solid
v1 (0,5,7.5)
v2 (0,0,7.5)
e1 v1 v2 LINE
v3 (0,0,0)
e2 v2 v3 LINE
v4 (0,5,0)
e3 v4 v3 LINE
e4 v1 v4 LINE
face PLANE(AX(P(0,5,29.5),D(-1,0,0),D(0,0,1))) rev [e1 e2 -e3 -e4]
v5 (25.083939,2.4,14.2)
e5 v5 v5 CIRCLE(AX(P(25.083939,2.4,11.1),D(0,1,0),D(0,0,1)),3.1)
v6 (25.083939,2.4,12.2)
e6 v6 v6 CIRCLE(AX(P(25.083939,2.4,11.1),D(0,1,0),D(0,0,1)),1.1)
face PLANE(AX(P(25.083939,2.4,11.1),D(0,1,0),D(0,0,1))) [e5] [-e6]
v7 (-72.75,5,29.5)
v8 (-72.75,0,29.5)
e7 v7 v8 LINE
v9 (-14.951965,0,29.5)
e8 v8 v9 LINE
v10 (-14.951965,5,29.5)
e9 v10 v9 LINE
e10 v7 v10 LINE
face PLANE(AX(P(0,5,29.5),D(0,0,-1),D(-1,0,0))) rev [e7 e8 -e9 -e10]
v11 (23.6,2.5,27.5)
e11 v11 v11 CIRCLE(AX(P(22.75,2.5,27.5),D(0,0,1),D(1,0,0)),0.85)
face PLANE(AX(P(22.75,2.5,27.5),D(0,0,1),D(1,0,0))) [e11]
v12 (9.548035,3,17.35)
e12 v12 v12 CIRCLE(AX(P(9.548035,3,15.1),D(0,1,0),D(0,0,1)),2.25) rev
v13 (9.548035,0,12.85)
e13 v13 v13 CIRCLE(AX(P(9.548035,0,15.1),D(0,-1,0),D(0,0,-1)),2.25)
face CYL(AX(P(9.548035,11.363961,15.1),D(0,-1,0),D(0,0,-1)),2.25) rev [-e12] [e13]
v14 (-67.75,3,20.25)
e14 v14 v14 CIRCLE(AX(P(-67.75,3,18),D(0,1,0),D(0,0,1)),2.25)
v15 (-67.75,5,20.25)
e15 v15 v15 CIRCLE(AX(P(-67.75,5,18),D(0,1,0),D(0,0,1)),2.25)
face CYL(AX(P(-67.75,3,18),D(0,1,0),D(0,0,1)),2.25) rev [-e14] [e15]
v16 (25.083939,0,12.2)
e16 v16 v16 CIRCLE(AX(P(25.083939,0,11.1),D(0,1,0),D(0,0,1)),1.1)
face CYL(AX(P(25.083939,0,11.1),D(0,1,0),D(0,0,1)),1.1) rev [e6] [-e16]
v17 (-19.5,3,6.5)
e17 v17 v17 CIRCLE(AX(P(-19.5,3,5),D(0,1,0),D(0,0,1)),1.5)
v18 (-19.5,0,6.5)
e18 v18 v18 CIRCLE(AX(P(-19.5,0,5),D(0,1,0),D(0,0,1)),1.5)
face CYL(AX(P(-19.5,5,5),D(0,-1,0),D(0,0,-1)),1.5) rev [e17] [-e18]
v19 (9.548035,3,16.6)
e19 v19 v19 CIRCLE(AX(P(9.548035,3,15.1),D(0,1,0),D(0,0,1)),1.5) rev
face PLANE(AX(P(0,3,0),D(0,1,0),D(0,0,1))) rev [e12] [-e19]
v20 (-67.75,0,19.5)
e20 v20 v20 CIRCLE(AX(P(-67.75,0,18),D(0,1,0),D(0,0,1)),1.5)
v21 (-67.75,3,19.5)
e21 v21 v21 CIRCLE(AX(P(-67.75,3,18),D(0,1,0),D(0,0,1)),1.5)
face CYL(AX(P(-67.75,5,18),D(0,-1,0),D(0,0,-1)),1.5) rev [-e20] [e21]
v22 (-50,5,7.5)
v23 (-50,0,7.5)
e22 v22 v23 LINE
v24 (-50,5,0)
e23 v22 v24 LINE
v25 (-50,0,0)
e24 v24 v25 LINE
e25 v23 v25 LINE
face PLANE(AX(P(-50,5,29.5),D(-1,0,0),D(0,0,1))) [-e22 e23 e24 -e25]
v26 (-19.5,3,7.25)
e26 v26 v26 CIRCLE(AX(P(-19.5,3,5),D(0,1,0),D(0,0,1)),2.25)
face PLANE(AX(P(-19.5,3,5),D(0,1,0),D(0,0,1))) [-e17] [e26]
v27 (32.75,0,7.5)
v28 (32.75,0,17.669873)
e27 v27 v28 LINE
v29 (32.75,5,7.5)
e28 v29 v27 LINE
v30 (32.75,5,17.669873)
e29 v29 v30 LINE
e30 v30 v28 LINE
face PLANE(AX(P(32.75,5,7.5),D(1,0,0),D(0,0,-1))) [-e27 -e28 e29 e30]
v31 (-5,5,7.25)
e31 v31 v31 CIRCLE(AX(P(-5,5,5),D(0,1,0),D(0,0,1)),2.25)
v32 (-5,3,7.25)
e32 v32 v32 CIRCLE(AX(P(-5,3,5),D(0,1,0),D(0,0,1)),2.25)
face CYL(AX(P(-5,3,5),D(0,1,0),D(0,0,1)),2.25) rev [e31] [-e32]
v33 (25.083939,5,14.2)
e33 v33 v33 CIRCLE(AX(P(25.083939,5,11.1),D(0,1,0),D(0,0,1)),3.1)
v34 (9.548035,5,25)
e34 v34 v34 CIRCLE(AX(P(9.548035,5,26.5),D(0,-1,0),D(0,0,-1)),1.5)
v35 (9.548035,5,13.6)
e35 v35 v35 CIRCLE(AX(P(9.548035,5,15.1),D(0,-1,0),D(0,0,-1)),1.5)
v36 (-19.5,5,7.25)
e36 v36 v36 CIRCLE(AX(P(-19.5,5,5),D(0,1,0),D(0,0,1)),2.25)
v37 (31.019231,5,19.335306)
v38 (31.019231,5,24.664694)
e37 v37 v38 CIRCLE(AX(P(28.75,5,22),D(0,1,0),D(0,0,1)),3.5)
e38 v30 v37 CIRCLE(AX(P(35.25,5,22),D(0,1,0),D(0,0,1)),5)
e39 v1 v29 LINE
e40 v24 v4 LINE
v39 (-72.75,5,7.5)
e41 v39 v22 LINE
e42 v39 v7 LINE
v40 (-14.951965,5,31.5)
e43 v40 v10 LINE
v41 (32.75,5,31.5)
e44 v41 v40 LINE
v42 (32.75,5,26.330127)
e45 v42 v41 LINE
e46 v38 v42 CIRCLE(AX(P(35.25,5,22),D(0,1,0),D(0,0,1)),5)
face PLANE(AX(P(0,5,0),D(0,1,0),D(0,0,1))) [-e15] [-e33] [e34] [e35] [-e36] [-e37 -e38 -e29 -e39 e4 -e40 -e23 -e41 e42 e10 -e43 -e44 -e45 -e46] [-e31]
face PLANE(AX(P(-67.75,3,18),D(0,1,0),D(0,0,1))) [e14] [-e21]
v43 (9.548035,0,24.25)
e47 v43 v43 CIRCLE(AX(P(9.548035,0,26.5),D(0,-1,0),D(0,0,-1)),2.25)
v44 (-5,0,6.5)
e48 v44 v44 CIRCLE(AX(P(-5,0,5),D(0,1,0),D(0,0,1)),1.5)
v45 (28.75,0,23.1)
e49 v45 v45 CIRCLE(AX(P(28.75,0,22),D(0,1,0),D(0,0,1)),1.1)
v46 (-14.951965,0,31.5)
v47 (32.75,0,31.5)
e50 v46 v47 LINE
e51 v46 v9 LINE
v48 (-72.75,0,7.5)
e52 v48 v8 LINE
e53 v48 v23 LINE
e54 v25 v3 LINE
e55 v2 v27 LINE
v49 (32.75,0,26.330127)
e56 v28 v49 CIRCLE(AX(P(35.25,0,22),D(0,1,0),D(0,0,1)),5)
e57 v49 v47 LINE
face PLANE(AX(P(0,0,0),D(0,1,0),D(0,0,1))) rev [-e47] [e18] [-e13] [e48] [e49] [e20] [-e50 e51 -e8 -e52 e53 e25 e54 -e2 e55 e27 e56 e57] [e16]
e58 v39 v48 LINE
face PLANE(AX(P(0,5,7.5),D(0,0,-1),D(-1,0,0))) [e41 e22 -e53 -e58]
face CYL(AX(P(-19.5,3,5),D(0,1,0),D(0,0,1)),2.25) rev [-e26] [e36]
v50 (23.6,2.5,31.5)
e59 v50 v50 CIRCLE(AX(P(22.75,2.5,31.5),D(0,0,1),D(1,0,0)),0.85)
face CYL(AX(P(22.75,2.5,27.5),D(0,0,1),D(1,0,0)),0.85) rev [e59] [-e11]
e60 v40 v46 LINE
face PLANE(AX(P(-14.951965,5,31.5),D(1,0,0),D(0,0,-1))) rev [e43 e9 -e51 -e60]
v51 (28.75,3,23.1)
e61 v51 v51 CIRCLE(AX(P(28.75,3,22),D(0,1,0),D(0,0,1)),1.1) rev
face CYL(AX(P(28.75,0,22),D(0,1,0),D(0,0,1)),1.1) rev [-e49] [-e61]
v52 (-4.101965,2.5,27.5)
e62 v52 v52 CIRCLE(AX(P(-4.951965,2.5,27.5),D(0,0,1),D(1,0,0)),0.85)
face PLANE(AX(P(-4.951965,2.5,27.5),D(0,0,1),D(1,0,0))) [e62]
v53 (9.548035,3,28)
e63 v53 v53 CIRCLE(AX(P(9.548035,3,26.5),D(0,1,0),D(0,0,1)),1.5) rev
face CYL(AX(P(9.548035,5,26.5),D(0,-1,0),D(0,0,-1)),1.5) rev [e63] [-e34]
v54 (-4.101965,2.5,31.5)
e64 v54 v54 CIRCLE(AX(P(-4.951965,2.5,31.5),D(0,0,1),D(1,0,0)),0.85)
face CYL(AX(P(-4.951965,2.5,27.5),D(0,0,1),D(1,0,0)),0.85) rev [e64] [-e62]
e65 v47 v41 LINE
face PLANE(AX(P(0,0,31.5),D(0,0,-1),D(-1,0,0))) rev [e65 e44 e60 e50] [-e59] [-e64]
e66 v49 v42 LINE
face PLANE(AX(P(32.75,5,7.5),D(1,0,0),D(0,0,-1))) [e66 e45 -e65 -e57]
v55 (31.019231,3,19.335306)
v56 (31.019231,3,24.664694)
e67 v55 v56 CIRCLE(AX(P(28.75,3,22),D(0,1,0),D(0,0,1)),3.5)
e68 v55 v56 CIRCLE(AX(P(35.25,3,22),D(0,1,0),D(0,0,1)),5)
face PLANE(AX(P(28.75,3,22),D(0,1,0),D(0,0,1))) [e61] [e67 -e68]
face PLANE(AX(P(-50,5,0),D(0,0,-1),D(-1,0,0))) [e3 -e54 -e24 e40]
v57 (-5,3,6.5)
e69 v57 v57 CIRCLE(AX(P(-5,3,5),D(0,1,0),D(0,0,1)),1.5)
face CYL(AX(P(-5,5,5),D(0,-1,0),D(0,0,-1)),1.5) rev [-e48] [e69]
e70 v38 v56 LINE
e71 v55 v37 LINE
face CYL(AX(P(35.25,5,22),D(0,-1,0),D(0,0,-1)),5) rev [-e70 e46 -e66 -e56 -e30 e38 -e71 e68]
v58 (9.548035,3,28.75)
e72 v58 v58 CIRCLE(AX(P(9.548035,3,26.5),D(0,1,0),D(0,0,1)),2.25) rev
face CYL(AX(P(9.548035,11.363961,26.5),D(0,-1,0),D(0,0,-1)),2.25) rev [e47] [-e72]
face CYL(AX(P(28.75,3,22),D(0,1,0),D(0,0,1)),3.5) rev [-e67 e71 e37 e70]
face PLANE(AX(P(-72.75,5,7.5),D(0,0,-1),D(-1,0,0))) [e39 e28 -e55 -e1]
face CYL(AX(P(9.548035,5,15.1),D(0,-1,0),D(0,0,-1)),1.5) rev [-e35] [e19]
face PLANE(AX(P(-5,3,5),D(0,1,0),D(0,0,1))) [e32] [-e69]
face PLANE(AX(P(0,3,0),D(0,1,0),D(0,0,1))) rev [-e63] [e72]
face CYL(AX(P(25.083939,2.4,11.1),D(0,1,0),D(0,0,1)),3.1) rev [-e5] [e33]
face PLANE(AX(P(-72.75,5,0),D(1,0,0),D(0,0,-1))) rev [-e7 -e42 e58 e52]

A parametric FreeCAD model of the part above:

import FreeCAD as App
import Part
import Sketcher
from FreeCAD import Vector
Q = App.Units.Quantity


def add_polygon(sketch, points):
    """Adds a closed chain of lines whose ends are joined by coincident constraints."""
    first, n = sketch.GeometryCount, len(points)
    for a, b in zip(points, points[1:] + points[:1]):
        sketch.addGeometry(Part.LineSegment(App.Vector(*a, 0), App.Vector(*b, 0)), False)
    for i in range(n):
        sketch.addConstraint(Sketcher.Constraint("Coincident", first + i, 2, first + (i + 1) % n, 1))

doc = App.newDocument("Part")
params = doc.addObject("Spreadsheet::Sheet", "Params")
for row, (alias, value) in enumerate([
    ("sketch1_width", "50 mm"),
    ("sketch1_height", "22 mm"),
    ("sketch1_width2", "105.5 mm"),
    ("sketch1_height2", "7.5 mm"),
    ("sketch1_width3", "32.75 mm"),
    ("pad1_length", "5 mm"),
    ("sketch2_diameter", "3 mm"),
    ("sketch3_diameter", "4.5 mm"),
    ("pocket2_length", "2 mm"),
    ("sketch4_diameter", "6.2 mm"),
    ("pocket3_length", "2.6 mm"),
    ("sketch5_diameter", "2.2 mm"),
    ("sketch6_diameter", "3 mm"),
    ("sketch7_diameter", "4.5 mm"),
    ("pocket6_length", "3 mm"),
    ("sketch8_height", "5 mm"),
    ("pad2_length", "2 mm"),
    ("sketch9_diameter", "1.7 mm"),
    ("pocket7_length", "4 mm"),
    ("sketch10_diameter", "10 mm"),
    ("sketch11_diameter", "7 mm"),
    ("pocket9_length", "2 mm"),
], start=1):
    params.set(f"A{row}", alias)
    params.set(f"B{row}", "=" + value)
    params.setAlias(f"B{row}", alias)

body = doc.addObject("PartDesign::Body", "Body")

sketch1 = body.newObject("Sketcher::SketchObject", "Sketch")
sketch1.AttachmentSupport = (doc.getObject("XZ_Plane"), [""])
sketch1.MapMode = "FlatFace"
add_polygon(sketch1, [(-73, 8), (-73, 30), (33, 30), (33, 8), (0, 8), (0, 0), (-50, 0), (-50, 8)])
sketch1.addConstraint([
    Sketcher.Constraint("Vertical", 0),
    Sketcher.Constraint("Horizontal", 1),
    Sketcher.Constraint("Vertical", 2),
    Sketcher.Constraint("Horizontal", 3),
    Sketcher.Constraint("Vertical", 4),
    Sketcher.Constraint("Horizontal", 5),
    Sketcher.Constraint("Vertical", 6),
    Sketcher.Constraint("Horizontal", 7),
    Sketcher.Constraint("Coincident", 4, 2, -1, 1),
    Sketcher.Constraint("Horizontal", 3, 2, 6, 2),
    Sketcher.Constraint("DistanceX", 5, 2, 5, 1, Q("50 mm")),
    Sketcher.Constraint("DistanceY", 0, 1, 0, 2, Q("22 mm")),
    Sketcher.Constraint("DistanceX", 1, 1, 1, 2, Q("105.5 mm")),
    Sketcher.Constraint("DistanceY", 4, 2, 4, 1, Q("7.5 mm")),
    Sketcher.Constraint("DistanceX", 3, 2, 3, 1, Q("32.75 mm")),
])
sketch1.setExpression("Constraints[18]", "Params.sketch1_width")
sketch1.setExpression("Constraints[19]", "Params.sketch1_height")
sketch1.setExpression("Constraints[20]", "Params.sketch1_width2")
sketch1.setExpression("Constraints[21]", "Params.sketch1_height2")
sketch1.setExpression("Constraints[22]", "Params.sketch1_width3")
pad1 = body.newObject("PartDesign::Pad", "Pad")
pad1.Profile = sketch1
pad1.setExpression("Length", "Params.pad1_length")
pad1.Reversed = True

sketch2 = body.newObject("Sketcher::SketchObject", "Sketch001")
sketch2.AttachmentSupport = (doc.getObject("XZ_Plane"), [""])
sketch2.MapMode = "FlatFace"
sketch2.addGeometry([
    Part.Circle(Vector(-19.5, 5, 0), Vector(0, 0, 1), 1.5),
    Part.Circle(Vector(-5, 5, 0), Vector(0, 0, 1), 1.5),
    Part.Circle(Vector(-67.8, 18, 0), Vector(0, 0, 1), 1.5),
], False)
sketch2.addConstraint([
    Sketcher.Constraint("Equal", 0, 1),
    Sketcher.Constraint("Equal", 1, 2),
    Sketcher.Constraint("Horizontal", 0, 3, 1, 3),
    Sketcher.Constraint("Diameter", 0, Q("3 mm")),
    Sketcher.Constraint("DistanceY", -1, 1, 0, 3, Q("5 mm")),
    Sketcher.Constraint("DistanceX", 1, 3, -1, 1, Q("5 mm")),
    Sketcher.Constraint("DistanceY", -1, 1, 2, 3, Q("18 mm")),
    Sketcher.Constraint("DistanceX", 0, 3, -1, 1, Q("19.5 mm")),
    Sketcher.Constraint("DistanceX", 2, 3, -1, 1, Q("67.75 mm")),
])
sketch2.setExpression("Constraints[3]", "Params.sketch2_diameter")
pocket1 = body.newObject("PartDesign::Pocket", "Pocket")
pocket1.Profile = sketch2
pocket1.Type = "ThroughAll"

sketch3 = body.newObject("Sketcher::SketchObject", "Sketch002")
sketch3.AttachmentSupport = (doc.getObject("XZ_Plane"), [""])
sketch3.MapMode = "FlatFace"
sketch3.AttachmentOffset = App.Placement(Vector(0, 0, -5), App.Rotation())
sketch3.addGeometry([
    Part.Circle(Vector(-19.5, 5, 0), Vector(0, 0, 1), 2.2),
    Part.Circle(Vector(-5, 5, 0), Vector(0, 0, 1), 2.2),
    Part.Circle(Vector(-67.8, 18, 0), Vector(0, 0, 1), 2.2),
], False)
sketch3.addConstraint([
    Sketcher.Constraint("Equal", 0, 1),
    Sketcher.Constraint("Equal", 1, 2),
    Sketcher.Constraint("Horizontal", 0, 3, 1, 3),
    Sketcher.Constraint("Diameter", 0, Q("4.5 mm")),
    Sketcher.Constraint("DistanceY", -1, 1, 0, 3, Q("5 mm")),
    Sketcher.Constraint("DistanceX", 1, 3, -1, 1, Q("5 mm")),
    Sketcher.Constraint("DistanceY", -1, 1, 2, 3, Q("18 mm")),
    Sketcher.Constraint("DistanceX", 0, 3, -1, 1, Q("19.5 mm")),
    Sketcher.Constraint("DistanceX", 2, 3, -1, 1, Q("67.75 mm")),
])
sketch3.setExpression("Constraints[3]", "Params.sketch3_diameter")
pocket2 = body.newObject("PartDesign::Pocket", "Pocket001")
pocket2.Profile = sketch3
pocket2.setExpression("Length", "Params.pocket2_length")
pocket2.Reversed = True

sketch4 = body.newObject("Sketcher::SketchObject", "Sketch003")
sketch4.AttachmentSupport = (doc.getObject("XZ_Plane"), [""])
sketch4.MapMode = "FlatFace"
sketch4.AttachmentOffset = App.Placement(Vector(0, 0, -5), App.Rotation())
sketch4.addGeometry(Part.Circle(Vector(25.1, 11.1, 0), Vector(0, 0, 1), 3.1), False)
sketch4.addConstraint([
    Sketcher.Constraint("Diameter", 0, Q("6.2 mm")),
    Sketcher.Constraint("DistanceY", -1, 1, 0, 3, Q("11.1 mm")),
    Sketcher.Constraint("DistanceX", -1, 1, 0, 3, Q("25.083939 mm")),
])
sketch4.setExpression("Constraints[0]", "Params.sketch4_diameter")
pocket3 = body.newObject("PartDesign::Pocket", "Pocket002")
pocket3.Profile = sketch4
pocket3.setExpression("Length", "Params.pocket3_length")
pocket3.Reversed = True

sketch5 = body.newObject("Sketcher::SketchObject", "Sketch004")
sketch5.AttachmentSupport = (doc.getObject("XZ_Plane"), [""])
sketch5.MapMode = "FlatFace"
sketch5.AttachmentOffset = App.Placement(Vector(0, 0, -5), App.Rotation())
sketch5.addGeometry([
    Part.Circle(Vector(28.8, 22, 0), Vector(0, 0, 1), 1.1),
    Part.Circle(Vector(25.1, 11.1, 0), Vector(0, 0, 1), 1.1),
], False)
sketch5.addConstraint([
    Sketcher.Constraint("Equal", 0, 1),
    Sketcher.Constraint("Diameter", 0, Q("2.2 mm")),
    Sketcher.Constraint("DistanceY", -1, 1, 0, 3, Q("22 mm")),
    Sketcher.Constraint("DistanceY", -1, 1, 1, 3, Q("11.1 mm")),
    Sketcher.Constraint("DistanceX", -1, 1, 0, 3, Q("28.75 mm")),
    Sketcher.Constraint("DistanceX", -1, 1, 1, 3, Q("25.083939 mm")),
])
sketch5.setExpression("Constraints[1]", "Params.sketch5_diameter")
pocket4 = body.newObject("PartDesign::Pocket", "Pocket003")
pocket4.Profile = sketch5
pocket4.Type = "ThroughAll"
pocket4.Reversed = True

sketch6 = body.newObject("Sketcher::SketchObject", "Sketch005")
sketch6.AttachmentSupport = (doc.getObject("XZ_Plane"), [""])
sketch6.MapMode = "FlatFace"
sketch6.addGeometry([
    Part.Circle(Vector(9.5, 15.1, 0), Vector(0, 0, 1), 1.5),
    Part.Circle(Vector(9.5, 26.5, 0), Vector(0, 0, 1), 1.5),
], False)
sketch6.addConstraint([
    Sketcher.Constraint("Equal", 0, 1),
    Sketcher.Constraint("Vertical", 0, 3, 1, 3),
    Sketcher.Constraint("Diameter", 0, Q("3 mm")),
    Sketcher.Constraint("DistanceY", -1, 1, 0, 3, Q("15.1 mm")),
    Sketcher.Constraint("DistanceY", -1, 1, 1, 3, Q("26.5 mm")),
    Sketcher.Constraint("DistanceX", -1, 1, 0, 3, Q("9.548035 mm")),
])
sketch6.setExpression("Constraints[2]", "Params.sketch6_diameter")
pocket5 = body.newObject("PartDesign::Pocket", "Pocket004")
pocket5.Profile = sketch6
pocket5.Type = "ThroughAll"

sketch7 = body.newObject("Sketcher::SketchObject", "Sketch006")
sketch7.AttachmentSupport = (doc.getObject("XZ_Plane"), [""])
sketch7.MapMode = "FlatFace"
sketch7.addGeometry([
    Part.Circle(Vector(9.5, 15.1, 0), Vector(0, 0, 1), 2.2),
    Part.Circle(Vector(9.5, 26.5, 0), Vector(0, 0, 1), 2.2),
], False)
sketch7.addConstraint([
    Sketcher.Constraint("Equal", 0, 1),
    Sketcher.Constraint("Vertical", 0, 3, 1, 3),
    Sketcher.Constraint("Diameter", 0, Q("4.5 mm")),
    Sketcher.Constraint("DistanceY", -1, 1, 0, 3, Q("15.1 mm")),
    Sketcher.Constraint("DistanceY", -1, 1, 1, 3, Q("26.5 mm")),
    Sketcher.Constraint("DistanceX", -1, 1, 0, 3, Q("9.548035 mm")),
])
sketch7.setExpression("Constraints[2]", "Params.sketch7_diameter")
pocket6 = body.newObject("PartDesign::Pocket", "Pocket005")
pocket6.Profile = sketch7
pocket6.setExpression("Length", "Params.pocket6_length")

sketch8 = body.newObject("Sketcher::SketchObject", "Sketch007")
sketch8.AttachmentSupport = (doc.getObject("XY_Plane"), [""])
sketch8.MapMode = "FlatFace"
sketch8.AttachmentOffset = App.Placement(Vector(0, 0, 29.5), App.Rotation())
add_polygon(sketch8, [(-15, 5), (-15, 0), (33, 0), (33, 5)])
sketch8.addConstraint([
    Sketcher.Constraint("Vertical", 0),
    Sketcher.Constraint("Horizontal", 1),
    Sketcher.Constraint("Vertical", 2),
    Sketcher.Constraint("Horizontal", 3),
    Sketcher.Constraint("PointOnObject", 0, 2, -1),
    Sketcher.Constraint("DistanceY", 0, 2, 0, 1, Q("5 mm")),
    Sketcher.Constraint("DistanceX", -1, 1, 1, 2, Q("32.75 mm")),
    Sketcher.Constraint("DistanceX", 1, 1, 1, 2, Q("47.701965 mm")),
])
sketch8.setExpression("Constraints[9]", "Params.sketch8_height")
pad2 = body.newObject("PartDesign::Pad", "Pad001")
pad2.Profile = sketch8
pad2.setExpression("Length", "Params.pad2_length")

sketch9 = body.newObject("Sketcher::SketchObject", "Sketch008")
sketch9.AttachmentSupport = (doc.getObject("XY_Plane"), [""])
sketch9.MapMode = "FlatFace"
sketch9.AttachmentOffset = App.Placement(Vector(0, 0, 31.5), App.Rotation())
sketch9.addGeometry([
    Part.Circle(Vector(22.8, 2.5, 0), Vector(0, 0, 1), 0.8),
    Part.Circle(Vector(-5, 2.5, 0), Vector(0, 0, 1), 0.8),
], False)
sketch9.addConstraint([
    Sketcher.Constraint("Equal", 0, 1),
    Sketcher.Constraint("Horizontal", 0, 3, 1, 3),
    Sketcher.Constraint("Diameter", 0, Q("1.7 mm")),
    Sketcher.Constraint("DistanceY", -1, 1, 0, 3, Q("2.5 mm")),
    Sketcher.Constraint("DistanceX", -1, 1, 0, 3, Q("22.75 mm")),
    Sketcher.Constraint("DistanceX", 1, 3, -1, 1, Q("4.951965 mm")),
])
sketch9.setExpression("Constraints[2]", "Params.sketch9_diameter")
pocket7 = body.newObject("PartDesign::Pocket", "Pocket006")
pocket7.Profile = sketch9
pocket7.setExpression("Length", "Params.pocket7_length")

sketch10 = body.newObject("Sketcher::SketchObject", "Sketch009")
sketch10.AttachmentSupport = (doc.getObject("XZ_Plane"), [""])
sketch10.MapMode = "FlatFace"
sketch10.addGeometry(Part.Circle(Vector(35, 22, 0), Vector(0, 0, 1), 5), False)
sketch10.addConstraint([
    Sketcher.Constraint("Diameter", 0, Q("10 mm")),
    Sketcher.Constraint("DistanceY", -1, 1, 0, 3, Q("22 mm")),
    Sketcher.Constraint("DistanceX", -1, 1, 0, 3, Q("35.25 mm")),
])
sketch10.setExpression("Constraints[0]", "Params.sketch10_diameter")
pocket8 = body.newObject("PartDesign::Pocket", "Pocket007")
pocket8.Profile = sketch10
pocket8.Type = "ThroughAll"

sketch11 = body.newObject("Sketcher::SketchObject", "Sketch010")
sketch11.AttachmentSupport = (doc.getObject("XZ_Plane"), [""])
sketch11.MapMode = "FlatFace"
sketch11.AttachmentOffset = App.Placement(Vector(0, 0, -5), App.Rotation())
sketch11.addGeometry(Part.Circle(Vector(28.8, 22, 0), Vector(0, 0, 1), 3.5), False)
sketch11.addConstraint([
    Sketcher.Constraint("Diameter", 0, Q("7 mm")),
    Sketcher.Constraint("DistanceY", -1, 1, 0, 3, Q("22 mm")),
    Sketcher.Constraint("DistanceX", -1, 1, 0, 3, Q("28.75 mm")),
])
sketch11.setExpression("Constraints[0]", "Params.sketch11_diameter")
pocket9 = body.newObject("PartDesign::Pocket", "Pocket008")
pocket9.Profile = sketch11
pocket9.setExpression("Length", "Params.pocket9_length")
pocket9.Reversed = True

doc.recompute()
